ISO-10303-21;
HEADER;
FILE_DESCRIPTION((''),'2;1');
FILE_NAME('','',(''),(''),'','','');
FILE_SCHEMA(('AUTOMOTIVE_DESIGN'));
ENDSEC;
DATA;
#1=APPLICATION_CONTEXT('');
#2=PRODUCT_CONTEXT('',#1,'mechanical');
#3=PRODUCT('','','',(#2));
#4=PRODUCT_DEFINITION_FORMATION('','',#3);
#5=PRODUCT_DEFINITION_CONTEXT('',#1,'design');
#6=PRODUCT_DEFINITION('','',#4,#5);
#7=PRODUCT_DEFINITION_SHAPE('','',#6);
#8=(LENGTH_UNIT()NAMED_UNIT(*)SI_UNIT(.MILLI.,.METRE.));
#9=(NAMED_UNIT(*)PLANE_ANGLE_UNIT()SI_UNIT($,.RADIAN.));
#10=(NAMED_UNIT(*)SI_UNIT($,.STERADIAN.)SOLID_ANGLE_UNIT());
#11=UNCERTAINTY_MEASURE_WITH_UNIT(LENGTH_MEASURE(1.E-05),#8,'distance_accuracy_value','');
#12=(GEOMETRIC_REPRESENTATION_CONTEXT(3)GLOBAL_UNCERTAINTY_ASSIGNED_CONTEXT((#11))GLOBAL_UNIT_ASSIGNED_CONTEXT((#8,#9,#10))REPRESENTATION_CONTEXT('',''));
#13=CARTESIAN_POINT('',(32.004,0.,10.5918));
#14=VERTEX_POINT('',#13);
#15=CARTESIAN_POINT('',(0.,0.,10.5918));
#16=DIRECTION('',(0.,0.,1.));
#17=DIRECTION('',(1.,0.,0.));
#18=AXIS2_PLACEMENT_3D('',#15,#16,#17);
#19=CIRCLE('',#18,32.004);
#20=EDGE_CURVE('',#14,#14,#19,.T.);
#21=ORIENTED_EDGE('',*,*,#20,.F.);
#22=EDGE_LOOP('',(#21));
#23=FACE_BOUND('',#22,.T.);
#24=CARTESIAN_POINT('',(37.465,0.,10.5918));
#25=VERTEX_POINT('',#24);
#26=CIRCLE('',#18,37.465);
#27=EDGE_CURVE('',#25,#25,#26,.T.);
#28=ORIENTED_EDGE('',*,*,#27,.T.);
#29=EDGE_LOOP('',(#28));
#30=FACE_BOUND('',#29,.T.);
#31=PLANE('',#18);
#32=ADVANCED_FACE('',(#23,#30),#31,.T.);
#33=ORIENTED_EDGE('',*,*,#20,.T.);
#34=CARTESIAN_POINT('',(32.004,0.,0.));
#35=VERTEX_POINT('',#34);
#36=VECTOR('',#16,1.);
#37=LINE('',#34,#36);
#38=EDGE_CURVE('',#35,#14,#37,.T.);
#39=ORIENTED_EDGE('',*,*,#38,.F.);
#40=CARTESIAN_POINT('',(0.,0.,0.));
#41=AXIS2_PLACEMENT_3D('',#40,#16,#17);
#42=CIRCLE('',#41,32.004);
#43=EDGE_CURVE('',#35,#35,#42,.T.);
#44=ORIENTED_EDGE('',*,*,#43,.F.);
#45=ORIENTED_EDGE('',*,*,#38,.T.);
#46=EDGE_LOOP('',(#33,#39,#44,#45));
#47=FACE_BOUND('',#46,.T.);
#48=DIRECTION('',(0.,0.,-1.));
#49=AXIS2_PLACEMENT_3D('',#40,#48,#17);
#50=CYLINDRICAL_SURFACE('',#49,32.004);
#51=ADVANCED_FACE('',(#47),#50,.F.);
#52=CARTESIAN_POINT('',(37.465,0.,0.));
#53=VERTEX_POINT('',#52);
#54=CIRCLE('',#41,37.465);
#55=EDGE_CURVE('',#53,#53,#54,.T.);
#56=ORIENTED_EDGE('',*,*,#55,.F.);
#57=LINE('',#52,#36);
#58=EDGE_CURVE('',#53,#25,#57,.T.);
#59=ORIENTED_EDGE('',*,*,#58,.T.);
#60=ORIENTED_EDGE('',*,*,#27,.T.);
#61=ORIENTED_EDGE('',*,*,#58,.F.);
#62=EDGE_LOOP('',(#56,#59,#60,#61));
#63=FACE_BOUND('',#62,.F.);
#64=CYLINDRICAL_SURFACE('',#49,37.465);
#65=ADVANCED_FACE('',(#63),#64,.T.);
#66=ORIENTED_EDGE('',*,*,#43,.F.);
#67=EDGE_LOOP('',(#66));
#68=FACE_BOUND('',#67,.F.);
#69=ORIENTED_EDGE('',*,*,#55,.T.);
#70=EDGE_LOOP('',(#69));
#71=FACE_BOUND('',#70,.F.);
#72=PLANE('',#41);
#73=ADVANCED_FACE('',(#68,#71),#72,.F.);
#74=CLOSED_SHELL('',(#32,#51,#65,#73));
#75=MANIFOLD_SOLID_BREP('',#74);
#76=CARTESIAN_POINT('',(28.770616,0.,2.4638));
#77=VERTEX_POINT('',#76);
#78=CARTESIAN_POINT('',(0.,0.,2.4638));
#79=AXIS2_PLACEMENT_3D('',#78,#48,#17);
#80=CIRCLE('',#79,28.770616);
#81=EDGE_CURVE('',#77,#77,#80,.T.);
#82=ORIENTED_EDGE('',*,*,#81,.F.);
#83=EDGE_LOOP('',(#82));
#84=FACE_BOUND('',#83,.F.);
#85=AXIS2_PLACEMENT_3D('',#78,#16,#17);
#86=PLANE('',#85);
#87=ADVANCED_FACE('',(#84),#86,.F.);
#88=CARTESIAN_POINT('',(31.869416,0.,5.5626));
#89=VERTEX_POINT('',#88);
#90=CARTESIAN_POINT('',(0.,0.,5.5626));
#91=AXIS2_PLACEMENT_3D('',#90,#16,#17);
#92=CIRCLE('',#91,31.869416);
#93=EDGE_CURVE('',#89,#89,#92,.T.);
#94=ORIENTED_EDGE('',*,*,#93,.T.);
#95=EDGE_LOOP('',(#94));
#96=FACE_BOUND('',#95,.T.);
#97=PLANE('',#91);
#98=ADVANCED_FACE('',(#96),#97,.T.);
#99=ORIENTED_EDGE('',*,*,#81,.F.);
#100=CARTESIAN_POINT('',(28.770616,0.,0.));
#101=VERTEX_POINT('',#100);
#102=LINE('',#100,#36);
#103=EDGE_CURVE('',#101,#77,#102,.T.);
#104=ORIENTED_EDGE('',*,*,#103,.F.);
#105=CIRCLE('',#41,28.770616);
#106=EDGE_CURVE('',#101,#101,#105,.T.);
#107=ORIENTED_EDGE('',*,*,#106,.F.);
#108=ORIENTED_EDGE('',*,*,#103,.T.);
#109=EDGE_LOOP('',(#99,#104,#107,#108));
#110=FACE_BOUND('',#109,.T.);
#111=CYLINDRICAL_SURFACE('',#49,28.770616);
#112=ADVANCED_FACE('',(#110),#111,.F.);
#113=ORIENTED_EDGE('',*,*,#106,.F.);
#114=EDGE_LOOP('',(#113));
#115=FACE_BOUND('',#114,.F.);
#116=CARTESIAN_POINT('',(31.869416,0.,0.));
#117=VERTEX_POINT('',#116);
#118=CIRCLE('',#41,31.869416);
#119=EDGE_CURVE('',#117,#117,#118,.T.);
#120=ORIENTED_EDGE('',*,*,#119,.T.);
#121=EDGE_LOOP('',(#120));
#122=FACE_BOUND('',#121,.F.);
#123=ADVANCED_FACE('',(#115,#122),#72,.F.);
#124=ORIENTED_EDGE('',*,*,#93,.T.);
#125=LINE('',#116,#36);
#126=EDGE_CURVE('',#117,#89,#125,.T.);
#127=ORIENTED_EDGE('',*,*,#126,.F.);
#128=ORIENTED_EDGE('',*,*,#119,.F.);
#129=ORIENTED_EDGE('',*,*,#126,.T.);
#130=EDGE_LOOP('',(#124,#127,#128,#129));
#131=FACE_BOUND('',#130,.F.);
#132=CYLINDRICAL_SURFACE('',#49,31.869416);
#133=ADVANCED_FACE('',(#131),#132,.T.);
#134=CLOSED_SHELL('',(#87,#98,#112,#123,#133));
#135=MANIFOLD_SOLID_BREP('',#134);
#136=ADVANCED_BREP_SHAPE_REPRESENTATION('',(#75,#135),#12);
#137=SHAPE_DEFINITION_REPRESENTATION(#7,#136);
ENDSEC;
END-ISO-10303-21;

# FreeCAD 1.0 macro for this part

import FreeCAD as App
import Part
import Sketcher
Q = App.Units.Quantity


def faces_at(feature, points):
    """Names of the faces that lie closest to the given points."""
    faces = feature.Shape.Faces
    near = lambda p: min(range(len(faces)), key=lambda i: faces[i].distToShape(Part.Vertex(*p))[0])
    return sorted({f"Face{near(p) + 1}" for p in points})

doc = App.newDocument("Part")
body = doc.addObject("PartDesign::Body", "Body")

# Sketch on XY plane
sketch1 = body.newObject("Sketcher::SketchObject", "Sketch")
sketch1.AttachmentSupport = (doc.getObject("XY_Plane"), [""])
sketch1.MapMode = "FlatFace"
sketch1.addGeometry([
    Part.Circle(App.Vector(0, 0, 0), App.Vector(0, 0, 1), 37),
    Part.Circle(App.Vector(0, 0, 0), App.Vector(0, 0, 1), 32),
], False)
sketch1.addConstraint([
    Sketcher.Constraint("Coincident", 0, 3, -1, 1),
    Sketcher.Constraint("Coincident", 1, 3, -1, 1),
    Sketcher.Constraint("Diameter", 0, Q("2.95 in")),
    Sketcher.Constraint("Diameter", 1, Q("2.52 in")),
])
pad1 = body.newObject("PartDesign::Pad", "Pad")
pad1.Profile = sketch1
pad1.Length = Q("0.417 in")
body2 = doc.addObject("PartDesign::Body", "Body001")

# Sketch on XY plane
sketch2 = body2.newObject("Sketcher::SketchObject", "Sketch001")
sketch2.AttachmentSupport = (doc.getObject("XY_Plane001"), [""])
sketch2.MapMode = "FlatFace"
sketch2.addGeometry(Part.Circle(App.Vector(0, 0, 0), App.Vector(0, 0, 1), 32), False)
sketch2.addConstraint([
    Sketcher.Constraint("Coincident", 0, 3, -1, 1),
    Sketcher.Constraint("Diameter", 0, 63.738832),
])
pad2 = body2.newObject("PartDesign::Pad", "Pad001")
pad2.Profile = sketch2
pad2.Length = Q("0.219 in")
doc.recompute()

thickness = body2.newObject("PartDesign::Thickness", "Thickness")
thickness.Base = (pad2, faces_at(pad2, [(0, 0, 0)]))
thickness.Value = Q("0.122 in")
thickness.Reversed = True
thickness.Join = "Arc"

doc.recompute()
